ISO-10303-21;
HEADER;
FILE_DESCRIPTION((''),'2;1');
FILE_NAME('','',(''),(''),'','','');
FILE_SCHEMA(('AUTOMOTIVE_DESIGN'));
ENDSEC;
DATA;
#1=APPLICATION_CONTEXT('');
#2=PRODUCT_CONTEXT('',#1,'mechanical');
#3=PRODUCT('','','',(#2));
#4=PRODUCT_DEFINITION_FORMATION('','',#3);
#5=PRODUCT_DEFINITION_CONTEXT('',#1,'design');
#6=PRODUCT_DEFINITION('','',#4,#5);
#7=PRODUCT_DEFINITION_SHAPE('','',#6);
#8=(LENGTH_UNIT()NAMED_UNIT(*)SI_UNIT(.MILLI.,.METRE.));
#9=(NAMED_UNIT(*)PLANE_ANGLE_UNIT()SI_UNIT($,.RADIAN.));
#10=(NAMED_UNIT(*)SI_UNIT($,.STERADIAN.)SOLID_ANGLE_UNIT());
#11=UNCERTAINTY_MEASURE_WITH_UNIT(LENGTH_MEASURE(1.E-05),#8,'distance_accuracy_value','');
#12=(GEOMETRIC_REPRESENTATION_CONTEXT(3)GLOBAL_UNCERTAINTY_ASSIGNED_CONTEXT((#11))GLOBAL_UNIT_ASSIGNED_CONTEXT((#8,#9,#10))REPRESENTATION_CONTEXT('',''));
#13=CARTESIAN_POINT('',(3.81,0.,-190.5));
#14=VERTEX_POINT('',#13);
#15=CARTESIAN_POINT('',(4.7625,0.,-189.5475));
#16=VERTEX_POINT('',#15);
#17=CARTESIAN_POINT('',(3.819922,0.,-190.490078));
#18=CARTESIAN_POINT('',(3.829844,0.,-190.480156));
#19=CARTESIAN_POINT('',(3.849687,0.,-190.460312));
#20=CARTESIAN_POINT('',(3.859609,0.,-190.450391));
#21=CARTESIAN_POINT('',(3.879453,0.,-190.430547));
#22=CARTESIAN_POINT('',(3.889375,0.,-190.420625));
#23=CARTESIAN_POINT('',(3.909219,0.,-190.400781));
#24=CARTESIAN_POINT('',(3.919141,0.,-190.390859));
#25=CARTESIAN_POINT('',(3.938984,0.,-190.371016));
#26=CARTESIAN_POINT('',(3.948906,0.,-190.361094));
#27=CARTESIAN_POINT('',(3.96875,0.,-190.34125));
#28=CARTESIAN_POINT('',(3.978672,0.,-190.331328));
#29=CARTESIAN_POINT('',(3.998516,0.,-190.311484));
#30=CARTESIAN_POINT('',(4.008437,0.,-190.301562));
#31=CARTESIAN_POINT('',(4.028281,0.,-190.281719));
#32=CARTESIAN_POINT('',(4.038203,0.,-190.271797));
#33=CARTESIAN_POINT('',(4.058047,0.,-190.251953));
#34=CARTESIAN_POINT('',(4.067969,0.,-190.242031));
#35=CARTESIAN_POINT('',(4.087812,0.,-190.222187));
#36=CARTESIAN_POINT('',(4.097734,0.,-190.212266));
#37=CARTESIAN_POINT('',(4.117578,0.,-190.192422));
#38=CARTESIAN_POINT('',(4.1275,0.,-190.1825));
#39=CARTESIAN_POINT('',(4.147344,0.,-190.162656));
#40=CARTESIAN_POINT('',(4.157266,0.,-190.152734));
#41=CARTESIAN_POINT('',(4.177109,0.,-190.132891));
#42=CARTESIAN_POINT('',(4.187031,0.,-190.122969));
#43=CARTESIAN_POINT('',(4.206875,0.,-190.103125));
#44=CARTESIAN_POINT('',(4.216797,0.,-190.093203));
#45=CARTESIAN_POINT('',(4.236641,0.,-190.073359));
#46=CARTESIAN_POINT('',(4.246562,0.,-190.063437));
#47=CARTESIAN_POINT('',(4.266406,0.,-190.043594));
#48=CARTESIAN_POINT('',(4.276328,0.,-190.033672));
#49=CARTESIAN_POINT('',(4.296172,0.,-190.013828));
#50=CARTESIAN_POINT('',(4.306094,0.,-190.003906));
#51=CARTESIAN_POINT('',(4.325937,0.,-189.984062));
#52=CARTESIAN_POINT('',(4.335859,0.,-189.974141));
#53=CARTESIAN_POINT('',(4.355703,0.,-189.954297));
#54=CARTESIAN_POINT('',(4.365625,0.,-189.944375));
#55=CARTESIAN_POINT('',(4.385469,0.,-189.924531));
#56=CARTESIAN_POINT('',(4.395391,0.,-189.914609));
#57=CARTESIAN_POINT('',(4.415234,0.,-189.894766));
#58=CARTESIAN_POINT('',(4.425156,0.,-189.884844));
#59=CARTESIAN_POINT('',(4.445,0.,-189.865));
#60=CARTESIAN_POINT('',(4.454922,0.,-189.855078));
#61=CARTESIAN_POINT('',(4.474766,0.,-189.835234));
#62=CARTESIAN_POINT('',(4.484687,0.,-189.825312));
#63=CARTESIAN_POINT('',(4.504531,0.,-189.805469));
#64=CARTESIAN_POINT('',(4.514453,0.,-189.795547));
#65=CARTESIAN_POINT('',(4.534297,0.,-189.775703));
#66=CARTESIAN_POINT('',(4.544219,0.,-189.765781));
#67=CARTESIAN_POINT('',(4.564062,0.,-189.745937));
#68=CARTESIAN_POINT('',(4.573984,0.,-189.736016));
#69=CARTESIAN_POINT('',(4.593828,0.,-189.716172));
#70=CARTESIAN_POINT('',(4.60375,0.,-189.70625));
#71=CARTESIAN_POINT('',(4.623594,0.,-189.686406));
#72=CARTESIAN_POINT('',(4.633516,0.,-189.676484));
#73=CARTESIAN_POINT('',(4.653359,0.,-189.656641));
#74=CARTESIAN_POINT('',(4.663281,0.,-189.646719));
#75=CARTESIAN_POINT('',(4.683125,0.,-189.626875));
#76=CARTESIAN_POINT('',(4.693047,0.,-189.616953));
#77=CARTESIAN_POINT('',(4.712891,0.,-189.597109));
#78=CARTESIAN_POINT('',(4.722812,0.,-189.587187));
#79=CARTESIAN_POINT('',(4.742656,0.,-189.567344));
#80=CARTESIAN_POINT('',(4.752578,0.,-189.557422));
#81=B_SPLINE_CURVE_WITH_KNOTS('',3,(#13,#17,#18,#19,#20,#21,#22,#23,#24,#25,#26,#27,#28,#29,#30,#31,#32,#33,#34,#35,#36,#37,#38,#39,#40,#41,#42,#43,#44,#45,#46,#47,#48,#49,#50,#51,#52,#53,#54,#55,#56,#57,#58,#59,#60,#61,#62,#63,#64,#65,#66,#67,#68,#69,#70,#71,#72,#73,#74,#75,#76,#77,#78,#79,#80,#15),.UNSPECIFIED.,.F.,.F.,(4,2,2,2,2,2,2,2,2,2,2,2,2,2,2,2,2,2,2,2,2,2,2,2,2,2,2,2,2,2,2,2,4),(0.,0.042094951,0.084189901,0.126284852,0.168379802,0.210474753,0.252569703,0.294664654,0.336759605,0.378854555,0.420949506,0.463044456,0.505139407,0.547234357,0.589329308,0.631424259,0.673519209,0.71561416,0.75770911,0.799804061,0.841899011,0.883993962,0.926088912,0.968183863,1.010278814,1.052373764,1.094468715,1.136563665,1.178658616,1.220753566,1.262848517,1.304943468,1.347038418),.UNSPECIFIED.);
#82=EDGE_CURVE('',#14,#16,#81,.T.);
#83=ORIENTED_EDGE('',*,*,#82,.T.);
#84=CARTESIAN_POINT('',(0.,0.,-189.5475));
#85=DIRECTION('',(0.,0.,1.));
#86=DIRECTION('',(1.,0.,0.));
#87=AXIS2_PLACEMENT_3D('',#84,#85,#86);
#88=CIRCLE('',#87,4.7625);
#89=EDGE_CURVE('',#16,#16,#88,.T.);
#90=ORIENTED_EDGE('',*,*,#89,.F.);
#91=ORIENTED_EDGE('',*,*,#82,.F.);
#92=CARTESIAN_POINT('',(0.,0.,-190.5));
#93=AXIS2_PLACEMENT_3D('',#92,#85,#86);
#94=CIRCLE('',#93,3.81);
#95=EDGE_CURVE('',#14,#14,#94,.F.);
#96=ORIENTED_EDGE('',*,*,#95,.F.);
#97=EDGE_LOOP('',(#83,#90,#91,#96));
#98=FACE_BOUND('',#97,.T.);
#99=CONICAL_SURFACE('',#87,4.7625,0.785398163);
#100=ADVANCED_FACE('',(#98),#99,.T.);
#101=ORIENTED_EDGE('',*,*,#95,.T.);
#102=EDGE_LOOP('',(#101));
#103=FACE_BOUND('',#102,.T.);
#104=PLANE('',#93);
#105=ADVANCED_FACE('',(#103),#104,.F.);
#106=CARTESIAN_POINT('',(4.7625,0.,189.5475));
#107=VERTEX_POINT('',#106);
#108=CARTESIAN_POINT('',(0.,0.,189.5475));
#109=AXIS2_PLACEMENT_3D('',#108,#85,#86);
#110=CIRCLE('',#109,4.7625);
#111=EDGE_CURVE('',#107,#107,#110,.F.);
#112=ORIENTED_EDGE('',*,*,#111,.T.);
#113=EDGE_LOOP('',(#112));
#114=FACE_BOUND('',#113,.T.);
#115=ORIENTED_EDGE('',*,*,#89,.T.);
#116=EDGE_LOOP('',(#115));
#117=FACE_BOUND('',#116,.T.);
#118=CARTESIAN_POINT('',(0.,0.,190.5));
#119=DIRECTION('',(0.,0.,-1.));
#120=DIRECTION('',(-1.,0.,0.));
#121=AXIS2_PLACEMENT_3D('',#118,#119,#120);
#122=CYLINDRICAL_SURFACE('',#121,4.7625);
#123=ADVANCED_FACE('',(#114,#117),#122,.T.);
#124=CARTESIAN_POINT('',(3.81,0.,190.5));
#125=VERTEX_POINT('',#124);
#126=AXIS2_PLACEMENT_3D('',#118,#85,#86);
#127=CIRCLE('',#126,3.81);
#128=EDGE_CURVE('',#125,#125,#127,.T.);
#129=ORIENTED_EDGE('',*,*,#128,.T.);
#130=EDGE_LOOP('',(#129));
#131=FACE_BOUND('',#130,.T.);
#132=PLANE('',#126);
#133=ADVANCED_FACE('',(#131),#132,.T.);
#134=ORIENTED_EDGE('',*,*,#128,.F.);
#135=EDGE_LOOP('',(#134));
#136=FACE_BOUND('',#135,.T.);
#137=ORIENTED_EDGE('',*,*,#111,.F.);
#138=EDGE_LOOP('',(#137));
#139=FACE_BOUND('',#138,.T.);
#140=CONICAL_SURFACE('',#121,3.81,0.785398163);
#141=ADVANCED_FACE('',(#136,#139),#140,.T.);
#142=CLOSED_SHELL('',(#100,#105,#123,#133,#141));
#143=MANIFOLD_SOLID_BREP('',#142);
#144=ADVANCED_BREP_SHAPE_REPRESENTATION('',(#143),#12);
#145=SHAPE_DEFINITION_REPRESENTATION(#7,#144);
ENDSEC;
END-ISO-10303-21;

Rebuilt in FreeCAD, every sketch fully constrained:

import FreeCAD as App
import Part
import Sketcher
Q = App.Units.Quantity


def edges_at(feature, points):
    """Names of the edges that pass closest to the given points."""
    edges = feature.Shape.Edges
    near = lambda p: min(range(len(edges)), key=lambda i: edges[i].distToShape(Part.Vertex(*p))[0])
    return sorted({f"Edge{near(p) + 1}" for p in points})

doc = App.newDocument("Part")
body = doc.addObject("PartDesign::Body", "Body")

# Sketch on XY plane
sketch1 = body.newObject("Sketcher::SketchObject", "Sketch")
sketch1.AttachmentSupport = (doc.getObject("XY_Plane"), [""])
sketch1.MapMode = "FlatFace"
sketch1.addGeometry(Part.Circle(App.Vector(0, 0, 0), App.Vector(0, 0, 1), 4.8), False)
sketch1.addConstraint(Sketcher.Constraint("Coincident", 0, 3, -1, 1))
sketch1.addConstraint(Sketcher.Constraint("Diameter", 0, Q("0.375 in")))
pad1 = body.newObject("PartDesign::Pad", "Pad")
pad1.Profile = sketch1
pad1.Length = Q("15 in")
pad1.Midplane = True
doc.recompute()

chamfer = body.newObject("PartDesign::Chamfer", "Chamfer")
chamfer.Base = (pad1, edges_at(pad1, [(-4.763, 0, -190.5), (-4.763, 0, 190.5)]))
chamfer.Size = Q("0.0375 in")

doc.recompute()
